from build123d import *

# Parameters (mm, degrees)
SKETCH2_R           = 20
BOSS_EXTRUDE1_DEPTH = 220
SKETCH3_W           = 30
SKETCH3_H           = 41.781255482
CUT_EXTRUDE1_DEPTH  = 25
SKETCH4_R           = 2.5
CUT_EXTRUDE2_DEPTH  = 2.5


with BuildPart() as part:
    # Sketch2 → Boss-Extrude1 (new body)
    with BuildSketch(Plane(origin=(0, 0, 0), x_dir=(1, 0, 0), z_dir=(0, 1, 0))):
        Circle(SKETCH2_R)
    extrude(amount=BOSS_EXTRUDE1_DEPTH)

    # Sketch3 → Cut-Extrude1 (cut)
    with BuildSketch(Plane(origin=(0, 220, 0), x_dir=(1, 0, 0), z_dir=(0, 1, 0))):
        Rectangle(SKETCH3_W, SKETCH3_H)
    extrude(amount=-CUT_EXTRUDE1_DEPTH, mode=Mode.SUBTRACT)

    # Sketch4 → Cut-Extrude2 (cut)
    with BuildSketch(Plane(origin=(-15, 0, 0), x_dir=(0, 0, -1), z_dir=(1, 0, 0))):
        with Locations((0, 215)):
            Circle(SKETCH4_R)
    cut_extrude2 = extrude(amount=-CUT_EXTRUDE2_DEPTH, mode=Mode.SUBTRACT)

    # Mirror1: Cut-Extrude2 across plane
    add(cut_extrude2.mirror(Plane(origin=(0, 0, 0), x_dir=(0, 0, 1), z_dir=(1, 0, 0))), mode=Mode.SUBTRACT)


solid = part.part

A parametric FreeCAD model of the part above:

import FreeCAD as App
import Part
import Sketcher
from FreeCAD import Vector


def add_polygon(sketch, points):
    """Adds a closed chain of lines whose ends are joined by coincident constraints."""
    first, n = sketch.GeometryCount, len(points)
    for a, b in zip(points, points[1:] + points[:1]):
        sketch.addGeometry(Part.LineSegment(App.Vector(*a, 0), App.Vector(*b, 0)), False)
    for i in range(n):
        sketch.addConstraint(Sketcher.Constraint("Coincident", first + i, 2, first + (i + 1) % n, 1))

doc = App.newDocument("Part")
body = doc.addObject("PartDesign::Body", "Body")

sketch1 = body.newObject("Sketcher::SketchObject", "Sketch")
sketch1.AttachmentSupport = (doc.getObject("XZ_Plane"), [""])
sketch1.MapMode = "FlatFace"
sketch1.addGeometry(Part.Circle(Vector(0, 0, 0), Vector(0, 0, 1), 20), False)
sketch1.addConstraint([
    Sketcher.Constraint("Coincident", 0, 3, -1, 1),
    Sketcher.Constraint("Diameter", 0, 40.0),
])
pad1 = body.newObject("PartDesign::Pad", "Pad")
pad1.Profile = sketch1
pad1.Length = 220
pad1.Reversed = True

sketch2 = body.newObject("Sketcher::SketchObject", "Sketch001")
sketch2.AttachmentSupport = (doc.getObject("XZ_Plane"), [""])
sketch2.MapMode = "FlatFace"
sketch2.AttachmentOffset = App.Placement(Vector(0, 0, -220), App.Rotation())
add_polygon(sketch2, [(-15, -21), (-15, 21), (15, 21), (15, -21)])
sketch2.addConstraint([
    Sketcher.Constraint("Vertical", 0),
    Sketcher.Constraint("Horizontal", 1),
    Sketcher.Constraint("Vertical", 2),
    Sketcher.Constraint("Horizontal", 3),
    Sketcher.Constraint("Symmetric", 0, 2, 2, 2, -1, 1),
    Sketcher.Constraint("DistanceX", 1, 1, 1, 2, 30.0),
    Sketcher.Constraint("DistanceY", 0, 1, 0, 2, 41.781255),
])
pocket1 = body.newObject("PartDesign::Pocket", "Pocket")
pocket1.Profile = sketch2
pocket1.Length = 25
pocket1.Reversed = True

sketch3 = body.newObject("Sketcher::SketchObject", "Sketch002")
sketch3.AttachmentSupport = (doc.getObject("YZ_Plane"), [""])
sketch3.MapMode = "FlatFace"
sketch3.AttachmentOffset = App.Placement(Vector(0, 0, -15), App.Rotation())
sketch3.addGeometry(Part.Circle(Vector(215, 0, 0), Vector(0, 0, 1), 2.5), False)
sketch3.addConstraint([
    Sketcher.Constraint("PointOnObject", 0, 3, -1),
    Sketcher.Constraint("Diameter", 0, 5.0),
    Sketcher.Constraint("DistanceX", -1, 1, 0, 3, 215.0),
])
pocket2 = body.newObject("PartDesign::Pocket", "Pocket001")
pocket2.Profile = sketch3
pocket2.Length = 2.5
doc.recompute()

mirrored = body.newObject("PartDesign::Mirrored", "Mirrored")
mirrored.Originals = [pocket2]
mirrored.MirrorPlane = (doc.getObject("YZ_Plane"), [""])
body.Tip = mirrored

doc.recompute()
